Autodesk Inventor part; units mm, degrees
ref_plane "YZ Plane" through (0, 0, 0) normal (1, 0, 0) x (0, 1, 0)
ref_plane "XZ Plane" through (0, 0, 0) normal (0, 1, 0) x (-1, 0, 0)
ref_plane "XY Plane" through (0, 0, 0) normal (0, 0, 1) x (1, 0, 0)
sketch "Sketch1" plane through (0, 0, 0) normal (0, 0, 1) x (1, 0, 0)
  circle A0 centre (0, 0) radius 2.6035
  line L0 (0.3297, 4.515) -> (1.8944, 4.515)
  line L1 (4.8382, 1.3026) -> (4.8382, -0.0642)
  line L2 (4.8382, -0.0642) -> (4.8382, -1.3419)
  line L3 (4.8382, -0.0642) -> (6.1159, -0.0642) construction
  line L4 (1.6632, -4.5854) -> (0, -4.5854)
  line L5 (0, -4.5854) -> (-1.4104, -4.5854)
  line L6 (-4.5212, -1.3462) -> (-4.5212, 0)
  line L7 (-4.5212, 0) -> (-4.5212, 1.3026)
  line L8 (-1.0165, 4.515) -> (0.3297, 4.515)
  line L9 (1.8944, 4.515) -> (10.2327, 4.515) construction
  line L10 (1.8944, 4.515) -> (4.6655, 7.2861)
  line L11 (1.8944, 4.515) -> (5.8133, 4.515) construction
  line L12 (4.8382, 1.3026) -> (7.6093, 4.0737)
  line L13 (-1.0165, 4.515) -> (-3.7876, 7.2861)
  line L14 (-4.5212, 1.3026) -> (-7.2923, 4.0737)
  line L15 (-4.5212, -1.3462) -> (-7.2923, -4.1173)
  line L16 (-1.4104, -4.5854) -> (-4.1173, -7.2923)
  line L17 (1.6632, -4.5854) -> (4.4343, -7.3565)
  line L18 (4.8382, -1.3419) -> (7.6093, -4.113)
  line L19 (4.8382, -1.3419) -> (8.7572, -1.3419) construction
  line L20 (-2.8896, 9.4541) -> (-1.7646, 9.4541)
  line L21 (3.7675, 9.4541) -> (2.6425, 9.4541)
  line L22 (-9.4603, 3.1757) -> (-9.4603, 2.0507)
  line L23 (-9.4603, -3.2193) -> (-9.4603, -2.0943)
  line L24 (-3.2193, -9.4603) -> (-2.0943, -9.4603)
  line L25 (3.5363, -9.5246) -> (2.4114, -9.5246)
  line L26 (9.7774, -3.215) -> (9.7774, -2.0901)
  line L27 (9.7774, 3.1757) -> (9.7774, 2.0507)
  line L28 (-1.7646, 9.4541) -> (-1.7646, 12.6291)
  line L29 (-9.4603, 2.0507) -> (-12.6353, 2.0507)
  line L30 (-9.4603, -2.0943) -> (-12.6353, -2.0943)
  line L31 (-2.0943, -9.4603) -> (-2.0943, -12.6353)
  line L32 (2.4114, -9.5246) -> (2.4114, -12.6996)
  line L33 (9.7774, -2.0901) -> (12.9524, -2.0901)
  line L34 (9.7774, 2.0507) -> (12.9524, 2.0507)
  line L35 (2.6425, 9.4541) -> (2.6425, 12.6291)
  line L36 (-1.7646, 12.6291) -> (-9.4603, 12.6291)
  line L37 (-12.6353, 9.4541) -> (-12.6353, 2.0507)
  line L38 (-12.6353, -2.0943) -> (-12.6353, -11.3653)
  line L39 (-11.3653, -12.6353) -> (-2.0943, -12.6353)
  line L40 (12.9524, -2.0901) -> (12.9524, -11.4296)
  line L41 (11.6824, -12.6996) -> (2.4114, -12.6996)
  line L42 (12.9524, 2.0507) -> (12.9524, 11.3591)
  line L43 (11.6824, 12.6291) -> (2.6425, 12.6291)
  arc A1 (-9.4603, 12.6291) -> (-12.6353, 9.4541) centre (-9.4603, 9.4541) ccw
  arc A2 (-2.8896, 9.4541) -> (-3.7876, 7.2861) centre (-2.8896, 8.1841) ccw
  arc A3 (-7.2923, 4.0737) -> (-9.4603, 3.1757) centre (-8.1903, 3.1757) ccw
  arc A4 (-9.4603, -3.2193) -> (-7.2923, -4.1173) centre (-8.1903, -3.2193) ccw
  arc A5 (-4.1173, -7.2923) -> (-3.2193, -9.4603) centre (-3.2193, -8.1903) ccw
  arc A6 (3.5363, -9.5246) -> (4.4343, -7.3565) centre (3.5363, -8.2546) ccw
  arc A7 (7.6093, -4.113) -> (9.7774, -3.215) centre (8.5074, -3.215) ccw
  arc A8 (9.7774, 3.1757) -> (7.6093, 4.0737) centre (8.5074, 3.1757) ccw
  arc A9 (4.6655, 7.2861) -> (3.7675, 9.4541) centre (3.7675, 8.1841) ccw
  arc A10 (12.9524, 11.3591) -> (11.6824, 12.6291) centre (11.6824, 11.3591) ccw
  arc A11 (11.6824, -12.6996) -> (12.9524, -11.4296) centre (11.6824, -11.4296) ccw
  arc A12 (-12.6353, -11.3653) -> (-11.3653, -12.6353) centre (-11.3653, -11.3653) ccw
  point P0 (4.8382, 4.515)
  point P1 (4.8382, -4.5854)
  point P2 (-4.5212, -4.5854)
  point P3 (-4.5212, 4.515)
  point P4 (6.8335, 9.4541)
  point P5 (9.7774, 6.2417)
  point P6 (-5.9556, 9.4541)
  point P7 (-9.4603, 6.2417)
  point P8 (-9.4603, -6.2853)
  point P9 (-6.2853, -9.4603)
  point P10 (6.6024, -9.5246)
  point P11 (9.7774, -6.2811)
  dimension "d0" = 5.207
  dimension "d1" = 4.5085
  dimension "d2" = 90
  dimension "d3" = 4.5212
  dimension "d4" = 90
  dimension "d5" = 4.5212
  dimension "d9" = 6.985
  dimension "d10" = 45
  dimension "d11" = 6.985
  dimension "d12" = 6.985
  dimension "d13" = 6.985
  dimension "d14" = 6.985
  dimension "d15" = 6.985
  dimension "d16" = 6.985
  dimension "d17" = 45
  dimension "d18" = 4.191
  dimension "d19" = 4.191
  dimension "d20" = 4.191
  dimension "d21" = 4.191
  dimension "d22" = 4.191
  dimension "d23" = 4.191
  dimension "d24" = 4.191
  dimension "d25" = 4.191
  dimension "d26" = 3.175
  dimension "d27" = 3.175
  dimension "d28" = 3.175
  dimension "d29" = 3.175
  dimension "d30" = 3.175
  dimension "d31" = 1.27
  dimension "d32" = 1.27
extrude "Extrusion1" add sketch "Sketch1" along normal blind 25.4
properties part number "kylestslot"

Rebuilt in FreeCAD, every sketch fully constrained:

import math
import FreeCAD as App
import Part
import Sketcher
from FreeCAD import Vector
Q = App.Units.Quantity

doc = App.newDocument("Part")
params = doc.addObject("Spreadsheet::Sheet", "Params")
for row, (alias, value) in enumerate([
    ("sketch1_radius", "0.05 in"),
    ("sketch1_diameter", "0.205 in"),
    ("sketch1_radius2", "0.125 in"),
    ("sketch1_width", "0.365 in"),
    ("sketch1_width2", "0.121 in"),
    ("pad1_length", "1 in"),
], start=1):
    params.set(f"A{row}", alias)
    params.set(f"B{row}", "=" + value)
    params.setAlias(f"B{row}", alias)

body = doc.addObject("PartDesign::Body", "Body")

# Sketch on XY plane
sketch1 = body.newObject("Sketcher::SketchObject", "Sketch")
sketch1.AttachmentSupport = (doc.getObject("XY_Plane"), [""])
sketch1.MapMode = "FlatFace"
sketch1.addGeometry(Part.LineSegment(Vector(1.8944, 4.515, 0), Vector(-1.0165, 4.515, 0)), False)
sketch1.addGeometry(Part.LineSegment(Vector(-1.0165, 4.515, 0), Vector(-3.7876, 7.2861, 0)), False)
sketch1.addGeometry(Part.ArcOfCircle(Part.Circle(Vector(-2.8896, 8.1841, 0), Vector(0, 0, 1), 1.27), math.radians(90), math.radians(225)), False)
sketch1.addGeometry(Part.LineSegment(Vector(-2.8896, 9.4541, 0), Vector(-1.7646, 9.4541, 0)), False)
sketch1.addGeometry(Part.LineSegment(Vector(-1.7646, 9.4541, 0), Vector(-1.7646, 12.6291, 0)), False)
sketch1.addGeometry(Part.LineSegment(Vector(-1.7646, 12.6291, 0), Vector(-9.4603, 12.6291, 0)), False)
sketch1.addGeometry(Part.ArcOfCircle(Part.Circle(Vector(-9.4603, 9.4541, 0), Vector(0, 0, 1), 3.175), math.radians(90), math.radians(180)), False)
sketch1.addGeometry(Part.LineSegment(Vector(-12.6353, 9.4541, 0), Vector(-12.6353, 2.0507, 0)), False)
sketch1.addGeometry(Part.LineSegment(Vector(-12.6353, 2.0507, 0), Vector(-9.4603, 2.0507, 0)), False)
sketch1.addGeometry(Part.LineSegment(Vector(-9.4603, 2.0507, 0), Vector(-9.4603, 3.1757, 0)), False)
sketch1.addGeometry(Part.ArcOfCircle(Part.Circle(Vector(-8.1903, 3.1757, 0), Vector(0, 0, 1), 1.269964), math.radians(45), math.radians(180)), False)
sketch1.addGeometry(Part.LineSegment(Vector(-7.2923, 4.0737, 0), Vector(-4.5212, 1.3026, 0)), False)
sketch1.addGeometry(Part.LineSegment(Vector(-4.5212, 1.3026, 0), Vector(-4.5212, -1.3462, 0)), False)
sketch1.addGeometry(Part.LineSegment(Vector(-4.5212, -1.3462, 0), Vector(-7.2923, -4.1173, 0)), False)
sketch1.addGeometry(Part.ArcOfCircle(Part.Circle(Vector(-8.1903, -3.2193, 0), Vector(0, 0, 1), 1.27), math.radians(180), math.radians(315)), False)
sketch1.addGeometry(Part.LineSegment(Vector(-9.4603, -3.2193, 0), Vector(-9.4603, -2.0943, 0)), False)
sketch1.addGeometry(Part.LineSegment(Vector(-9.4603, -2.0943, 0), Vector(-12.6353, -2.0943, 0)), False)
sketch1.addGeometry(Part.LineSegment(Vector(-12.6353, -2.0943, 0), Vector(-12.6353, -11.3653, 0)), False)
sketch1.addGeometry(Part.ArcOfCircle(Part.Circle(Vector(-11.3653, -11.3653, 0), Vector(0, 0, 1), 1.27), math.radians(180), math.radians(270)), False)
sketch1.addGeometry(Part.LineSegment(Vector(-11.3653, -12.6353, 0), Vector(-2.0943, -12.6353, 0)), False)
sketch1.addGeometry(Part.LineSegment(Vector(-2.0943, -12.6353, 0), Vector(-2.0943, -9.4603, 0)), False)
sketch1.addGeometry(Part.LineSegment(Vector(-2.0943, -9.4603, 0), Vector(-3.2193, -9.4603, 0)), False)
sketch1.addGeometry(Part.ArcOfCircle(Part.Circle(Vector(-3.2193, -8.1903, 0), Vector(0, 0, 1), 1.269964), math.radians(135), math.radians(270)), False)
sketch1.addGeometry(Part.LineSegment(Vector(-4.1173, -7.2923, 0), Vector(-1.4104, -4.5854, 0)), False)
sketch1.addGeometry(Part.LineSegment(Vector(-1.4104, -4.5854, 0), Vector(1.6632, -4.5854, 0)), False)
sketch1.addGeometry(Part.LineSegment(Vector(1.6632, -4.5854, 0), Vector(4.4343, -7.3565, 0)), False)
sketch1.addGeometry(Part.ArcOfCircle(Part.Circle(Vector(3.5363, -8.2546, 0), Vector(0, 0, 1), 1.27), math.radians(-90), math.radians(45.00319)), False)
sketch1.addGeometry(Part.LineSegment(Vector(3.5363, -9.5246, 0), Vector(2.4114, -9.5246, 0)), False)
sketch1.addGeometry(Part.LineSegment(Vector(2.4114, -9.5246, 0), Vector(2.4114, -12.6996, 0)), False)
sketch1.addGeometry(Part.LineSegment(Vector(2.4114, -12.6996, 0), Vector(11.6824, -12.6996, 0)), False)
sketch1.addGeometry(Part.ArcOfCircle(Part.Circle(Vector(11.6824, -11.4296, 0), Vector(0, 0, 1), 1.27), math.radians(-90), math.radians(0)), False)
sketch1.addGeometry(Part.LineSegment(Vector(12.9524, -11.4296, 0), Vector(12.9524, -2.0901, 0)), False)
sketch1.addGeometry(Part.LineSegment(Vector(12.9524, -2.0901, 0), Vector(9.7774, -2.0901, 0)), False)
sketch1.addGeometry(Part.LineSegment(Vector(9.7774, -2.0901, 0), Vector(9.7774, -3.215, 0)), False)
sketch1.addGeometry(Part.ArcOfCircle(Part.Circle(Vector(8.5074, -3.215, 0), Vector(0, 0, 1), 1.270034), math.radians(-135.00319), math.radians(0)), False)
sketch1.addGeometry(Part.LineSegment(Vector(7.6093, -4.113, 0), Vector(4.8382, -1.3419, 0)), False)
sketch1.addGeometry(Part.LineSegment(Vector(4.8382, -1.3419, 0), Vector(4.8382, 1.3026, 0)), False)
sketch1.addGeometry(Part.LineSegment(Vector(4.8382, 1.3026, 0), Vector(7.6093, 4.0737, 0)), False)
sketch1.addGeometry(Part.ArcOfCircle(Part.Circle(Vector(8.5074, 3.1757, 0), Vector(0, 0, 1), 1.27), math.radians(0), math.radians(135.00319)), False)
sketch1.addGeometry(Part.LineSegment(Vector(9.7774, 3.1757, 0), Vector(9.7774, 2.0507, 0)), False)
sketch1.addGeometry(Part.LineSegment(Vector(9.7774, 2.0507, 0), Vector(12.9524, 2.0507, 0)), False)
sketch1.addGeometry(Part.LineSegment(Vector(12.9524, 2.0507, 0), Vector(12.9524, 11.3591, 0)), False)
sketch1.addGeometry(Part.ArcOfCircle(Part.Circle(Vector(11.6824, 11.3591, 0), Vector(0, 0, 1), 1.27), math.radians(0), math.radians(90)), False)
sketch1.addGeometry(Part.LineSegment(Vector(11.6824, 12.6291, 0), Vector(2.6425, 12.6291, 0)), False)
sketch1.addGeometry(Part.LineSegment(Vector(2.6425, 12.6291, 0), Vector(2.6425, 9.4541, 0)), False)
sketch1.addGeometry(Part.LineSegment(Vector(2.6425, 9.4541, 0), Vector(3.7675, 9.4541, 0)), False)
sketch1.addGeometry(Part.ArcOfCircle(Part.Circle(Vector(3.7675, 8.1841, 0), Vector(0, 0, 1), 1.269964), math.radians(-45), math.radians(90)), False)
sketch1.addGeometry(Part.LineSegment(Vector(4.6655, 7.2861, 0), Vector(1.8944, 4.515, 0)), False)
sketch1.addGeometry(Part.Circle(Vector(0, 0, 0), Vector(0, 0, 1), 2.6035), False)
sketch1.addConstraint(Sketcher.Constraint("Coincident", 0, 2, 1, 1))
sketch1.addConstraint(Sketcher.Constraint("Tangent", 1, 2, 2, 2))
sketch1.addConstraint(Sketcher.Constraint("Tangent", 2, 1, 3, 1))
sketch1.addConstraint(Sketcher.Constraint("Coincident", 3, 2, 4, 1))
sketch1.addConstraint(Sketcher.Constraint("Coincident", 4, 2, 5, 1))
sketch1.addConstraint(Sketcher.Constraint("Tangent", 5, 2, 6, 1))
sketch1.addConstraint(Sketcher.Constraint("Tangent", 6, 2, 7, 1))
sketch1.addConstraint(Sketcher.Constraint("Coincident", 7, 2, 8, 1))
sketch1.addConstraint(Sketcher.Constraint("Coincident", 8, 2, 9, 1))
sketch1.addConstraint(Sketcher.Constraint("Tangent", 9, 2, 10, 2))
sketch1.addConstraint(Sketcher.Constraint("Tangent", 10, 1, 11, 1))
sketch1.addConstraint(Sketcher.Constraint("Coincident", 11, 2, 12, 1))
sketch1.addConstraint(Sketcher.Constraint("Coincident", 12, 2, 13, 1))
sketch1.addConstraint(Sketcher.Constraint("Tangent", 13, 2, 14, 2))
sketch1.addConstraint(Sketcher.Constraint("Tangent", 14, 1, 15, 1))
sketch1.addConstraint(Sketcher.Constraint("Coincident", 15, 2, 16, 1))
sketch1.addConstraint(Sketcher.Constraint("Coincident", 16, 2, 17, 1))
sketch1.addConstraint(Sketcher.Constraint("Tangent", 17, 2, 18, 1))
sketch1.addConstraint(Sketcher.Constraint("Tangent", 18, 2, 19, 1))
sketch1.addConstraint(Sketcher.Constraint("Coincident", 19, 2, 20, 1))
sketch1.addConstraint(Sketcher.Constraint("Coincident", 20, 2, 21, 1))
sketch1.addConstraint(Sketcher.Constraint("Tangent", 21, 2, 22, 2))
sketch1.addConstraint(Sketcher.Constraint("Tangent", 22, 1, 23, 1))
sketch1.addConstraint(Sketcher.Constraint("Coincident", 23, 2, 24, 1))
sketch1.addConstraint(Sketcher.Constraint("Coincident", 24, 2, 25, 1))
sketch1.addConstraint(Sketcher.Constraint("Tangent", 25, 2, 26, 2))
sketch1.addConstraint(Sketcher.Constraint("Tangent", 26, 1, 27, 1))
sketch1.addConstraint(Sketcher.Constraint("Coincident", 27, 2, 28, 1))
sketch1.addConstraint(Sketcher.Constraint("Coincident", 28, 2, 29, 1))
sketch1.addConstraint(Sketcher.Constraint("Tangent", 29, 2, 30, 1))
sketch1.addConstraint(Sketcher.Constraint("Tangent", 30, 2, 31, 1))
sketch1.addConstraint(Sketcher.Constraint("Coincident", 31, 2, 32, 1))
sketch1.addConstraint(Sketcher.Constraint("Coincident", 32, 2, 33, 1))
sketch1.addConstraint(Sketcher.Constraint("Tangent", 33, 2, 34, 2))
sketch1.addConstraint(Sketcher.Constraint("Tangent", 34, 1, 35, 1))
sketch1.addConstraint(Sketcher.Constraint("Coincident", 35, 2, 36, 1))
sketch1.addConstraint(Sketcher.Constraint("Coincident", 36, 2, 37, 1))
sketch1.addConstraint(Sketcher.Constraint("Tangent", 37, 2, 38, 2))
sketch1.addConstraint(Sketcher.Constraint("Tangent", 38, 1, 39, 1))
sketch1.addConstraint(Sketcher.Constraint("Coincident", 39, 2, 40, 1))
sketch1.addConstraint(Sketcher.Constraint("Coincident", 40, 2, 41, 1))
sketch1.addConstraint(Sketcher.Constraint("Tangent", 41, 2, 42, 1))
sketch1.addConstraint(Sketcher.Constraint("Tangent", 42, 2, 43, 1))
sketch1.addConstraint(Sketcher.Constraint("Coincident", 43, 2, 44, 1))
sketch1.addConstraint(Sketcher.Constraint("Coincident", 44, 2, 45, 1))
sketch1.addConstraint(Sketcher.Constraint("Tangent", 45, 2, 46, 2))
sketch1.addConstraint(Sketcher.Constraint("Tangent", 46, 1, 47, 1))
sketch1.addConstraint(Sketcher.Constraint("Coincident", 47, 2, 0, 1))
sketch1.addConstraint(Sketcher.Constraint("Horizontal", 0))
sketch1.addConstraint(Sketcher.Constraint("Horizontal", 3))
sketch1.addConstraint(Sketcher.Constraint("Vertical", 4))
sketch1.addConstraint(Sketcher.Constraint("Horizontal", 5))
sketch1.addConstraint(Sketcher.Constraint("Vertical", 7))
sketch1.addConstraint(Sketcher.Constraint("Horizontal", 8))
sketch1.addConstraint(Sketcher.Constraint("Vertical", 9))
sketch1.addConstraint(Sketcher.Constraint("Vertical", 12))
sketch1.addConstraint(Sketcher.Constraint("Vertical", 15))
sketch1.addConstraint(Sketcher.Constraint("Horizontal", 16))
sketch1.addConstraint(Sketcher.Constraint("Vertical", 17))
sketch1.addConstraint(Sketcher.Constraint("Horizontal", 19))
sketch1.addConstraint(Sketcher.Constraint("Vertical", 20))
sketch1.addConstraint(Sketcher.Constraint("Horizontal", 21))
sketch1.addConstraint(Sketcher.Constraint("Horizontal", 24))
sketch1.addConstraint(Sketcher.Constraint("Horizontal", 27))
sketch1.addConstraint(Sketcher.Constraint("Vertical", 28))
sketch1.addConstraint(Sketcher.Constraint("Horizontal", 29))
sketch1.addConstraint(Sketcher.Constraint("Vertical", 31))
sketch1.addConstraint(Sketcher.Constraint("Horizontal", 32))
sketch1.addConstraint(Sketcher.Constraint("Vertical", 33))
sketch1.addConstraint(Sketcher.Constraint("Vertical", 36))
sketch1.addConstraint(Sketcher.Constraint("Vertical", 39))
sketch1.addConstraint(Sketcher.Constraint("Horizontal", 40))
sketch1.addConstraint(Sketcher.Constraint("Vertical", 41))
sketch1.addConstraint(Sketcher.Constraint("Horizontal", 43))
sketch1.addConstraint(Sketcher.Constraint("Vertical", 44))
sketch1.addConstraint(Sketcher.Constraint("Horizontal", 45))
sketch1.addConstraint(Sketcher.Constraint("Coincident", 48, 3, -1, 1))
sketch1.addConstraint(Sketcher.Constraint("Equal", 2, 10))
sketch1.addConstraint(Sketcher.Constraint("Equal", 10, 14))
sketch1.addConstraint(Sketcher.Constraint("Equal", 14, 18))
sketch1.addConstraint(Sketcher.Constraint("Equal", 18, 22))
sketch1.addConstraint(Sketcher.Constraint("Equal", 22, 26))
sketch1.addConstraint(Sketcher.Constraint("Equal", 26, 30))
sketch1.addConstraint(Sketcher.Constraint("Equal", 30, 34))
sketch1.addConstraint(Sketcher.Constraint("Equal", 34, 38))
sketch1.addConstraint(Sketcher.Constraint("Equal", 38, 42))
sketch1.addConstraint(Sketcher.Constraint("Equal", 42, 46))
sketch1.addConstraint(Sketcher.Constraint("Parallel", 1, 11))
sketch1.addConstraint(Sketcher.Constraint("Perpendicular", 11, 13))
sketch1.addConstraint(Sketcher.Constraint("Parallel", 13, 23))
sketch1.addConstraint(Sketcher.Constraint("Perpendicular", 23, 25))
sketch1.addConstraint(Sketcher.Constraint("Parallel", 25, 35))
sketch1.addConstraint(Sketcher.Constraint("Perpendicular", 35, 37))
sketch1.addConstraint(Sketcher.Constraint("Parallel", 37, 47))
sketch1.addConstraint(Sketcher.Constraint("Horizontal", 10, 3, 38, 3))
sketch1.addConstraint(Sketcher.Constraint("Horizontal", 2, 3, 46, 3))
sketch1.addConstraint(Sketcher.Constraint("Horizontal", 6, 3, 2, 1))
sketch1.addConstraint(Sketcher.Constraint("Horizontal", 11, 2, 36, 2))
sketch1.addConstraint(Sketcher.Constraint("Horizontal", 10, 1, 37, 2))
sketch1.addConstraint(Sketcher.Constraint("Horizontal", 8, 2, 39, 2))
sketch1.addConstraint(Sketcher.Constraint("Horizontal", 5, 2, 42, 2))
sketch1.addConstraint(Sketcher.Constraint("Vertical", 10, 3, 14, 3))
sketch1.addConstraint(Sketcher.Constraint("Vertical", 34, 3, 38, 3))
sketch1.addConstraint(Sketcher.Constraint("Vertical", 30, 3, 42, 3))
sketch1.addConstraint(Sketcher.Constraint("Vertical", 5, 2, 8, 2))
sketch1.addConstraint(Sketcher.Constraint("Vertical", 7, 2, 16, 2))
sketch1.addConstraint(Sketcher.Constraint("Equal", 3, 21))
sketch1.addConstraint(Sketcher.Constraint("Equal", 21, 27))
sketch1.addConstraint(Sketcher.Constraint("Equal", 19, 29))
sketch1.addConstraint(Sketcher.Constraint("Equal", 16, 32))
sketch1.addConstraint(Sketcher.Constraint("Equal", 27, 45))
sketch1.addConstraint(Sketcher.Constraint("Equal", 45, 9))
sketch1.addConstraint(Sketcher.Constraint("Equal", 9, 15))
sketch1.addConstraint(Sketcher.Constraint("Equal", 29, 17))
sketch1.addConstraint(Sketcher.Constraint("Equal", 4, 20))
sketch1.addConstraint(Sketcher.Constraint("Equal", 20, 28))
sketch1.addConstraint(Sketcher.Constraint("Equal", 15, 33))
sketch1.addConstraint(Sketcher.Constraint("Equal", 1, 11))
sketch1.addConstraint(Sketcher.Constraint("Equal", 13, 25))
sketch1.addConstraint(Sketcher.Constraint("Radius", 2, Q("0.05 in")))
sketch1.addConstraint(Sketcher.Constraint("Diameter", 48, Q("0.205 in")))
sketch1.addConstraint(Sketcher.Constraint("Radius", 6, Q("0.125 in")))
sketch1.addConstraint(Sketcher.Constraint("DistanceX", 11, 2, -1, 1, Q("0.178 in")))
sketch1.addConstraint(Sketcher.Constraint("DistanceX", 19, 1, 19, 2, Q("0.365 in")))
sketch1.addConstraint(Sketcher.Constraint("DistanceX", 24, 1, 24, 2, Q("0.121 in")))
sketch1.addConstraint(Sketcher.Constraint("DistanceX", 0, 2, 0, 1, Q("0.1146 in")))
sketch1.addConstraint(Sketcher.Constraint("DistanceX", 3, 1, 3, 2, Q("0.0443 in")))
sketch1.addConstraint(Sketcher.Constraint("DistanceX", 43, 2, 43, 1, Q("0.3559 in")))
sketch1.addConstraint(Sketcher.Constraint("DistanceY", 31, 1, 31, 2, Q("0.3677 in")))
sketch1.addConstraint(Sketcher.Constraint("DistanceY", 12, 2, -1, 1, Q("0.053 in")))
sketch1.addConstraint(Sketcher.Constraint("Distance", 1, Q("0.1543 in")))
sketch1.addConstraint(Sketcher.Constraint("DistanceX", 5, 2, 5, 1, 7.6957))
sketch1.addConstraint(Sketcher.Constraint("DistanceY", 7, 2, 7, 1, 7.4034))
sketch1.addConstraint(Sketcher.Constraint("DistanceY", 12, 2, 12, 1, 2.6488))
sketch1.setExpression("Constraints[119]", "Params.sketch1_radius")
sketch1.setExpression("Constraints[120]", "Params.sketch1_diameter")
sketch1.setExpression("Constraints[121]", "Params.sketch1_radius2")
sketch1.setExpression("Constraints[123]", "Params.sketch1_width")
sketch1.setExpression("Constraints[124]", "Params.sketch1_width2")
pad1 = body.newObject("PartDesign::Pad", "Pad")
pad1.Profile = sketch1
pad1.setExpression("Length", "Params.pad1_length")

doc.recompute()
